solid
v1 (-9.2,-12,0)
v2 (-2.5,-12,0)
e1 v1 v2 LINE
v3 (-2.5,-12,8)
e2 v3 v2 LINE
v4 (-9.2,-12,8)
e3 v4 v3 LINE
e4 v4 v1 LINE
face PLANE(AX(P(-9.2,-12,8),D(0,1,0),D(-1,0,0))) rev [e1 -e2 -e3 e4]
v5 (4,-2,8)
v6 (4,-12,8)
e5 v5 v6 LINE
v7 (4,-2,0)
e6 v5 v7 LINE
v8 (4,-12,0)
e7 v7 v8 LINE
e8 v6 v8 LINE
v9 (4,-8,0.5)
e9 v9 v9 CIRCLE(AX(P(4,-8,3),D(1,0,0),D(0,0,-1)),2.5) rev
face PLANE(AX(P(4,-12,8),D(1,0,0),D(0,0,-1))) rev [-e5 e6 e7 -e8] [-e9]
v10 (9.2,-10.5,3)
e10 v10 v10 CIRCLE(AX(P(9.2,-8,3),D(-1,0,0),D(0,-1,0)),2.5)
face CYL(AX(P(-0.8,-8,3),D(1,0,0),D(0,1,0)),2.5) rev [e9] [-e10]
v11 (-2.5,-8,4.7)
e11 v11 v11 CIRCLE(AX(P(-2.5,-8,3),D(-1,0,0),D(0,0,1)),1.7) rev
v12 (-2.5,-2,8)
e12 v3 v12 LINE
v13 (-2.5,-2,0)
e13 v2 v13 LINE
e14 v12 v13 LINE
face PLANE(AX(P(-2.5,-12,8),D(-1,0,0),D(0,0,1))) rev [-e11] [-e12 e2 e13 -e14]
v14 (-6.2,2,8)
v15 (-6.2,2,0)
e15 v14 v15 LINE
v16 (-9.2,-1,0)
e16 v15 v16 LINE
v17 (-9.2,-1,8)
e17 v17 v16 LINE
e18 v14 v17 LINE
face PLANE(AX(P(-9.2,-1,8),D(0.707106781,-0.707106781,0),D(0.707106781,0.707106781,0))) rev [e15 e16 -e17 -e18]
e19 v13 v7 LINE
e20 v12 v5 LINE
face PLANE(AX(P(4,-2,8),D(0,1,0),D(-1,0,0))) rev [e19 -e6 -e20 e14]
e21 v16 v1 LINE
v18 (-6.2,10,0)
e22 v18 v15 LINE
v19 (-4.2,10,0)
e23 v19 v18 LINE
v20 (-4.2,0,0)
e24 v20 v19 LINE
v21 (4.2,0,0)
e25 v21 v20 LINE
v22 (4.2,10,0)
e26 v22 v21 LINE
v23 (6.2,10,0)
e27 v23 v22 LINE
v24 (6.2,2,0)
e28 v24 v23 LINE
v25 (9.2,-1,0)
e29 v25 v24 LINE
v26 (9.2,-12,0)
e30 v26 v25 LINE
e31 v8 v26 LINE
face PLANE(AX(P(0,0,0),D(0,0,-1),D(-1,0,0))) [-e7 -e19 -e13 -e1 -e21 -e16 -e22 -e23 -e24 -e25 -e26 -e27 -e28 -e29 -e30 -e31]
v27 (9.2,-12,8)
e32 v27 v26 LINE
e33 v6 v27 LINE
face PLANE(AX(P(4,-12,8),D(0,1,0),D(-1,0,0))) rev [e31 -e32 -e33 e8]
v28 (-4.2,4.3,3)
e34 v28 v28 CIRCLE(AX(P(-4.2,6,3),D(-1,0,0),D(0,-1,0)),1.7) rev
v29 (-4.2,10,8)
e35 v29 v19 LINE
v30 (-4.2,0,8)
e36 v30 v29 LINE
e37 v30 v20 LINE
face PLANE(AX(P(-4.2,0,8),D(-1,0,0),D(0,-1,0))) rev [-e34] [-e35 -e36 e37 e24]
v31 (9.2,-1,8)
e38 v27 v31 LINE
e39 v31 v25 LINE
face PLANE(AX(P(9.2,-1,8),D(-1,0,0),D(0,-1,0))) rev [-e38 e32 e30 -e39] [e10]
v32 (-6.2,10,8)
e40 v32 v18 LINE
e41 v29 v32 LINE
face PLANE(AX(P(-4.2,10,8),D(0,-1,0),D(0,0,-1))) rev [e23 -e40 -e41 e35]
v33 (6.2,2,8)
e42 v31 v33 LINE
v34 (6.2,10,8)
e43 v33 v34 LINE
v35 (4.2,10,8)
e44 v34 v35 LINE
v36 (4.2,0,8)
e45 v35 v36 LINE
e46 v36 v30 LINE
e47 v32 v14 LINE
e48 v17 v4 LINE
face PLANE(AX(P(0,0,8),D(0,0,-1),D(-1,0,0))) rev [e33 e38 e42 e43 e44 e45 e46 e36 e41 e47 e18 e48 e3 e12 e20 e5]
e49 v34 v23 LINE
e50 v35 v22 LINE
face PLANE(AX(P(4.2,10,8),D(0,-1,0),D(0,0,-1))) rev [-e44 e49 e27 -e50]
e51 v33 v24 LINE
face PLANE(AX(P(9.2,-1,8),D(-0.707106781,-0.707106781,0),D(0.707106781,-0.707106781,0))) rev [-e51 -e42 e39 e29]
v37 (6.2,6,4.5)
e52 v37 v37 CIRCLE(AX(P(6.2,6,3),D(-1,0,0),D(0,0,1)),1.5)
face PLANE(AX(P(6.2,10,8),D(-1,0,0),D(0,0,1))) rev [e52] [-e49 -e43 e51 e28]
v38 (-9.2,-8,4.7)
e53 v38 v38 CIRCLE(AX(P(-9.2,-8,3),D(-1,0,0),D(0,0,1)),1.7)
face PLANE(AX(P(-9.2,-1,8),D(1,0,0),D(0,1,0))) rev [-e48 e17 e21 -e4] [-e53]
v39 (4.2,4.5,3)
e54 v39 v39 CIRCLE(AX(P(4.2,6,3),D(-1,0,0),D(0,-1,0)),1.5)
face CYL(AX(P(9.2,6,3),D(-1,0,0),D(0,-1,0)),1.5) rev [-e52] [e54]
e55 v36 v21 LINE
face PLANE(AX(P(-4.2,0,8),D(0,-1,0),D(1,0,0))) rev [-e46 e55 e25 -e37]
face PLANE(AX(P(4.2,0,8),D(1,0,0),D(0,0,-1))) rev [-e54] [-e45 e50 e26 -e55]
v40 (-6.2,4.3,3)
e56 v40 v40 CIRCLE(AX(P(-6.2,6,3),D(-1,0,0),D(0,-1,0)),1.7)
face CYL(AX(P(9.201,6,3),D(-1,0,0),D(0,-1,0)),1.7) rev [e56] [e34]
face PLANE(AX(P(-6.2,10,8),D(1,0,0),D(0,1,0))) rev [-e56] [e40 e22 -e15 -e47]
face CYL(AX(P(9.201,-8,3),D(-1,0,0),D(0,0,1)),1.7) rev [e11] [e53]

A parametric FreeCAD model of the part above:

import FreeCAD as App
import Part
import Sketcher
from FreeCAD import Vector
Q = App.Units.Quantity

doc = App.newDocument("Part")
body = doc.addObject("PartDesign::Body", "Body")

sketch1 = doc.addObject("Sketcher::SketchObject", "Sketch")
body.addObject(sketch1)
sketch1.AttachmentSupport = (doc.XY_Plane, [""])
sketch1.MapMode = "FlatFace"
sketch1.addGeometry([
    Part.LineSegment(Vector(4.2, 0, 0), Vector(-4.2, 0, 0)),
    Part.LineSegment(Vector(-4.2, 0, 0), Vector(-4.2, 10, 0)),
    Part.LineSegment(Vector(-4.2, 10, 0), Vector(-6.2, 10, 0)),
    Part.LineSegment(Vector(-6.2, 10, 0), Vector(-6.2, 2, 0)),
    Part.LineSegment(Vector(-6.2, 2, 0), Vector(-9.2, -1, 0)),
    Part.LineSegment(Vector(-9.2, -1, 0), Vector(-9.2, -12, 0)),
    Part.LineSegment(Vector(-9.2, -12, 0), Vector(-2.5, -12, 0)),
    Part.LineSegment(Vector(-2.5, -12, 0), Vector(-2.5, -2, 0)),
    Part.LineSegment(Vector(-2.5, -2, 0), Vector(4, -2, 0)),
    Part.LineSegment(Vector(4, -2, 0), Vector(4, -12, 0)),
    Part.LineSegment(Vector(4, -12, 0), Vector(9.2, -12, 0)),
    Part.LineSegment(Vector(9.2, -12, 0), Vector(9.2, -1, 0)),
    Part.LineSegment(Vector(9.2, -1, 0), Vector(6.2, 2, 0)),
    Part.LineSegment(Vector(6.2, 2, 0), Vector(6.2, 10, 0)),
    Part.LineSegment(Vector(6.2, 10, 0), Vector(4.2, 10, 0)),
    Part.LineSegment(Vector(4.2, 10, 0), Vector(4.2, 0, 0)),
], False)
sketch1.addConstraint([
    Sketcher.Constraint("Coincident", 0, 2, 1, 1),
    Sketcher.Constraint("Coincident", 1, 2, 2, 1),
    Sketcher.Constraint("Coincident", 2, 2, 3, 1),
    Sketcher.Constraint("Coincident", 3, 2, 4, 1),
    Sketcher.Constraint("Coincident", 4, 2, 5, 1),
    Sketcher.Constraint("Coincident", 5, 2, 6, 1),
    Sketcher.Constraint("Coincident", 6, 2, 7, 1),
    Sketcher.Constraint("Coincident", 7, 2, 8, 1),
    Sketcher.Constraint("Coincident", 8, 2, 9, 1),
    Sketcher.Constraint("Coincident", 9, 2, 10, 1),
    Sketcher.Constraint("Coincident", 10, 2, 11, 1),
    Sketcher.Constraint("Coincident", 11, 2, 12, 1),
    Sketcher.Constraint("Coincident", 12, 2, 13, 1),
    Sketcher.Constraint("Coincident", 13, 2, 14, 1),
    Sketcher.Constraint("Coincident", 14, 2, 15, 1),
    Sketcher.Constraint("Coincident", 15, 2, 0, 1),
    Sketcher.Constraint("Horizontal", 0),
    Sketcher.Constraint("Vertical", 1),
    Sketcher.Constraint("Horizontal", 2),
    Sketcher.Constraint("Vertical", 3),
    Sketcher.Constraint("Vertical", 5),
    Sketcher.Constraint("Horizontal", 6),
    Sketcher.Constraint("Vertical", 7),
    Sketcher.Constraint("Horizontal", 8),
    Sketcher.Constraint("Vertical", 9),
    Sketcher.Constraint("Horizontal", 10),
    Sketcher.Constraint("Vertical", 11),
    Sketcher.Constraint("Vertical", 13),
    Sketcher.Constraint("Horizontal", 14),
    Sketcher.Constraint("Vertical", 15),
    Sketcher.Constraint("Symmetric", 0, 2, 15, 2, -1, 1),
    Sketcher.Constraint("Symmetric", 5, 2, 10, 2, -2),
    Sketcher.Constraint("Symmetric", 3, 2, 12, 2, -2),
    Sketcher.Constraint("Perpendicular", 4, 12),
    Sketcher.Constraint("Horizontal", 4, 2, 11, 2),
    Sketcher.Constraint("Horizontal", 2, 2, 13, 2),
    Sketcher.Constraint("Equal", 1, 7),
    Sketcher.Constraint("DistanceX", 2, 2, 2, 1, Q("2 mm")),
    Sketcher.Constraint("DistanceY", 1, 1, 1, 2, Q("10 mm")),
    Sketcher.Constraint("DistanceY", 3, 2, 3, 1, Q("8 mm")),
    Sketcher.Constraint("DistanceY", 5, 2, 5, 1, Q("11 mm")),
    Sketcher.Constraint("DistanceX", 0, 2, 0, 1, Q("8.4 mm")),
    Sketcher.Constraint("DistanceX", 6, 1, 6, 2, Q("6.7 mm")),
    Sketcher.Constraint("DistanceX", 8, 1, 8, 2, Q("6.5 mm")),
    Sketcher.Constraint("DistanceX", 10, 1, 10, 2, Q("5.2 mm")),
])
pad1 = doc.addObject("PartDesign::Pad", "Pad")
body.addObject(pad1)
pad1.Profile = sketch1
pad1.Length = 8

sketch2 = doc.addObject("Sketcher::SketchObject", "Sketch001")
body.addObject(sketch2)
sketch2.AttachmentSupport = (doc.YZ_Plane, [""])
sketch2.MapMode = "FlatFace"
sketch2.AttachmentOffset = App.Placement(Vector(0, 0, 9.2), App.Rotation())
sketch2.addGeometry(Part.Circle(Vector(-8, 3, 0), Vector(0, 0, 1), 2.5), False)
sketch2.addConstraint([
    Sketcher.Constraint("Diameter", 0, Q("5 mm")),
    Sketcher.Constraint("DistanceX", 0, 3, -1, 1, Q("8 mm")),
    Sketcher.Constraint("DistanceY", -1, 1, 0, 3, Q("3 mm")),
])
pocket1 = doc.addObject("PartDesign::Pocket", "Pocket")
body.addObject(pocket1)
pocket1.Profile = sketch2
pocket1.Length = 10

sketch3 = doc.addObject("Sketcher::SketchObject", "Sketch002")
body.addObject(sketch3)
sketch3.AttachmentSupport = (doc.YZ_Plane, [""])
sketch3.MapMode = "FlatFace"
sketch3.AttachmentOffset = App.Placement(Vector(0, 0, -9.2), App.Rotation())
sketch3.addGeometry(Part.Circle(Vector(-8, 3, 0), Vector(0, 0, 1), 1.7), False)
sketch3.addConstraint([
    Sketcher.Constraint("Diameter", 0, Q("3.4 mm")),
    Sketcher.Constraint("DistanceX", 0, 3, -1, 1, Q("8 mm")),
    Sketcher.Constraint("DistanceY", -1, 1, 0, 3, Q("3 mm")),
])
pocket2 = doc.addObject("PartDesign::Pocket", "Pocket001")
body.addObject(pocket2)
pocket2.Profile = sketch3
pocket2.Type = "UpToFirst"
pocket2.Reversed = True

sketch4 = doc.addObject("Sketcher::SketchObject", "Sketch003")
body.addObject(sketch4)
sketch4.AttachmentSupport = (doc.YZ_Plane, [""])
sketch4.MapMode = "FlatFace"
sketch4.AttachmentOffset = App.Placement(Vector(0, 0, -6.2), App.Rotation())
sketch4.addGeometry(Part.Circle(Vector(6, 3, 0), Vector(0, 0, 1), 1.7), False)
sketch4.addConstraint([
    Sketcher.Constraint("Diameter", 0, Q("3.4 mm")),
    Sketcher.Constraint("DistanceX", -1, 1, 0, 3, Q("6 mm")),
    Sketcher.Constraint("DistanceY", -1, 1, 0, 3, Q("3 mm")),
])
pocket3 = doc.addObject("PartDesign::Pocket", "Pocket002")
body.addObject(pocket3)
pocket3.Profile = sketch4
pocket3.Type = "UpToFirst"
pocket3.Reversed = True

sketch5 = doc.addObject("Sketcher::SketchObject", "Sketch004")
body.addObject(sketch5)
sketch5.AttachmentSupport = (doc.YZ_Plane, [""])
sketch5.MapMode = "FlatFace"
sketch5.AttachmentOffset = App.Placement(Vector(0, 0, 4.2), App.Rotation())
sketch5.addGeometry(Part.Circle(Vector(6, 3, 0), Vector(0, 0, 1), 1.5), False)
sketch5.addConstraint([
    Sketcher.Constraint("Diameter", 0, Q("3 mm")),
    Sketcher.Constraint("DistanceX", -1, 1, 0, 3, Q("6 mm")),
    Sketcher.Constraint("DistanceY", -1, 1, 0, 3, Q("3 mm")),
])
pocket4 = doc.addObject("PartDesign::Pocket", "Pocket003")
body.addObject(pocket4)
pocket4.Profile = sketch5
pocket4.Length = 5
pocket4.Reversed = True

doc.recompute()
